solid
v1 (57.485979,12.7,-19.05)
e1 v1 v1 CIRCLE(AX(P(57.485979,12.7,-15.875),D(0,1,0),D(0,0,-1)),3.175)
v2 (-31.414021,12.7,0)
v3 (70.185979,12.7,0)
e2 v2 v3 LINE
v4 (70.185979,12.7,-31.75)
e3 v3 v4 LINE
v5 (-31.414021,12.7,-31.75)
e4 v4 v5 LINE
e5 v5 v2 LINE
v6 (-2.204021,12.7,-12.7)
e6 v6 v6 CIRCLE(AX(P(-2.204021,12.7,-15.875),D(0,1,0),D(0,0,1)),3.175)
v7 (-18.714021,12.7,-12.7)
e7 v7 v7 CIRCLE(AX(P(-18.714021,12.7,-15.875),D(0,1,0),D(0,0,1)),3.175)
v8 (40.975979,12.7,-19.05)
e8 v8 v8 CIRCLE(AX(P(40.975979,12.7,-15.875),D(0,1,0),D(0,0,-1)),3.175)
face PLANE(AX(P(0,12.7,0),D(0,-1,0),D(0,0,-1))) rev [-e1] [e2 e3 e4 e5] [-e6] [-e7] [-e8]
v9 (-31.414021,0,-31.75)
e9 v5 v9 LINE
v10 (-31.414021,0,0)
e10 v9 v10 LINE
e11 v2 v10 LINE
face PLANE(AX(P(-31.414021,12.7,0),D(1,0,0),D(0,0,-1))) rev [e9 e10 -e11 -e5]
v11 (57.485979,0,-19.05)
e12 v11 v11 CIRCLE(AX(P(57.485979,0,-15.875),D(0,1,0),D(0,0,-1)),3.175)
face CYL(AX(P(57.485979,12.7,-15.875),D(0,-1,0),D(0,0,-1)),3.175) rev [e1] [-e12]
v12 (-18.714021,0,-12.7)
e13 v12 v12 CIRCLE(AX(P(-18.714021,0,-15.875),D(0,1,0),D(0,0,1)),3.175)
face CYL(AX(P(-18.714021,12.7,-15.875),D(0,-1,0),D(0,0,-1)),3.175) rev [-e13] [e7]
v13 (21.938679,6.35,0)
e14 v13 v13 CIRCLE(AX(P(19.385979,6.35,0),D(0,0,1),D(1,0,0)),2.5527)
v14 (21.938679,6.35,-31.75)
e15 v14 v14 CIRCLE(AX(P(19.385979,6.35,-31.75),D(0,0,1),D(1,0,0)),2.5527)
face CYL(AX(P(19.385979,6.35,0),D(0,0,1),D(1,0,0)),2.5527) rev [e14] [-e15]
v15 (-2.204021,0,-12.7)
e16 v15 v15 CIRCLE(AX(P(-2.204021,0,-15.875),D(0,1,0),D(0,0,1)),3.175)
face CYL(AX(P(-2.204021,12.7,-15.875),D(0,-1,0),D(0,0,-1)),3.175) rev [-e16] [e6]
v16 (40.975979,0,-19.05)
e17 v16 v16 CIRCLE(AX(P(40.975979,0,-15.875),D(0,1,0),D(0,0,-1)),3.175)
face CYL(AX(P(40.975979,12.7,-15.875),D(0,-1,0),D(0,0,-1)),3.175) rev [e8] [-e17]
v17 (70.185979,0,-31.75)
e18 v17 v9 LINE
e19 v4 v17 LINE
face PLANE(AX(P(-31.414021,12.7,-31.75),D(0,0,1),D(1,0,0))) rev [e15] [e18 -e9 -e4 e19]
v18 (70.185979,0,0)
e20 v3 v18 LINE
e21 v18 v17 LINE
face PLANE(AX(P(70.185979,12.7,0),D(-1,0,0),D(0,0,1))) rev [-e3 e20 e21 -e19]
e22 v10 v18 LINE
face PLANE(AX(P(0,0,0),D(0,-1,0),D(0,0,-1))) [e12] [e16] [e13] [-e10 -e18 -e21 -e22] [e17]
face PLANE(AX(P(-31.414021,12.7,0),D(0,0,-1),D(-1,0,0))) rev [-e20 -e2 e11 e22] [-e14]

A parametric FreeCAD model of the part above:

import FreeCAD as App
import Part
import Sketcher
Q = App.Units.Quantity

doc = App.newDocument("Part")
body = doc.addObject("PartDesign::Body", "Body")

# Sketch on XZ plane
sketch1 = body.newObject("Sketcher::SketchObject", "Sketch")
sketch1.AttachmentSupport = (doc.getObject("XZ_Plane"), [""])
sketch1.MapMode = "FlatFace"
sketch1.addGeometry([
    Part.LineSegment(App.Vector(-31.4, -31.8, 0), App.Vector(-31.4, 0, 0)),  # 0
    Part.LineSegment(App.Vector(-31.4, 0, 0), App.Vector(70.2, 0, 0)),  # 1
    Part.LineSegment(App.Vector(70.2, 0, 0), App.Vector(70.2, -31.8, 0)),  # 2
    Part.LineSegment(App.Vector(70.2, -31.8, 0), App.Vector(-31.4, -31.8, 0)),  # 3
    Part.Circle(App.Vector(-18.7, -15.9, 0), App.Vector(0, 0, 1), 3.2),  # 4
    Part.Circle(App.Vector(-2.2, -15.9, 0), App.Vector(0, 0, 1), 3.2),  # 5
    Part.Circle(App.Vector(41, -15.9, 0), App.Vector(0, 0, 1), 3.2),  # 6
    Part.Circle(App.Vector(57.5, -15.9, 0), App.Vector(0, 0, 1), 3.2),  # 7
], False)
sketch1.addConstraint([
    Sketcher.Constraint("Coincident", 0, 2, 1, 1),
    Sketcher.Constraint("Coincident", 1, 2, 2, 1),
    Sketcher.Constraint("Coincident", 2, 2, 3, 1),
    Sketcher.Constraint("Coincident", 3, 2, 0, 1),
    Sketcher.Constraint("Vertical", 0),
    Sketcher.Constraint("Horizontal", 1),
    Sketcher.Constraint("Vertical", 2),
    Sketcher.Constraint("Horizontal", 3),
    Sketcher.Constraint("Equal", 4, 5),
    Sketcher.Constraint("Equal", 5, 6),
    Sketcher.Constraint("Equal", 6, 7),
    Sketcher.Constraint("PointOnObject", 0, 2, -1),
    Sketcher.Constraint("Horizontal", 4, 3, 5, 3),
    Sketcher.Constraint("Horizontal", 5, 3, 6, 3),
    Sketcher.Constraint("Horizontal", 6, 3, 7, 3),
    Sketcher.Constraint("Diameter", 4, Q("0.25 in")),
    Sketcher.Constraint("DistanceX", 1, 1, 1, 2, Q("4 in")),
    Sketcher.Constraint("DistanceX", 4, 3, 7, 3, Q("3 in")),
    Sketcher.Constraint("DistanceY", 0, 1, 0, 2, Q("1.25 in")),
    Sketcher.Constraint("DistanceX", 5, 3, 6, 3, Q("1.7 in")),
    Sketcher.Constraint("DistanceX", 0, 2, 4, 3, Q("0.5 in")),
    Sketcher.Constraint("DistanceX", 4, 3, 5, 3, Q("0.65 in")),
    Sketcher.Constraint("DistanceY", 4, 3, -1, 1, Q("0.625 in")),
    Sketcher.Constraint("DistanceX", 4, 3, -1, 1, Q("18.714021 mm")),
])
pad1 = body.newObject("PartDesign::Pad", "Pad")
pad1.Profile = sketch1
pad1.Length = Q("0.5 in")
pad1.Reversed = True

# Sketch on XY plane
sketch2 = body.newObject("Sketcher::SketchObject", "Sketch001")
sketch2.AttachmentSupport = (doc.getObject("XY_Plane"), [""])
sketch2.MapMode = "FlatFace"
sketch2.addGeometry(Part.Circle(App.Vector(19.4, 6.3, 0), App.Vector(0, 0, 1), 2.6), False)
sketch2.addConstraint([
    Sketcher.Constraint("Diameter", 0, Q("0.201 in")),
    Sketcher.Constraint("DistanceY", -1, 1, 0, 3, Q("0.25 in")),
    Sketcher.Constraint("DistanceX", -1, 1, 0, 3, Q("19.385979 mm")),
])
doc.recompute()
hole = body.newObject("PartDesign::Hole", "Hole")
hole.Profile = sketch2
hole.ThreadType = "None"
hole.Diameter = Q("0.201 in")
hole.DepthType = "ThroughAll"

doc.recompute()
